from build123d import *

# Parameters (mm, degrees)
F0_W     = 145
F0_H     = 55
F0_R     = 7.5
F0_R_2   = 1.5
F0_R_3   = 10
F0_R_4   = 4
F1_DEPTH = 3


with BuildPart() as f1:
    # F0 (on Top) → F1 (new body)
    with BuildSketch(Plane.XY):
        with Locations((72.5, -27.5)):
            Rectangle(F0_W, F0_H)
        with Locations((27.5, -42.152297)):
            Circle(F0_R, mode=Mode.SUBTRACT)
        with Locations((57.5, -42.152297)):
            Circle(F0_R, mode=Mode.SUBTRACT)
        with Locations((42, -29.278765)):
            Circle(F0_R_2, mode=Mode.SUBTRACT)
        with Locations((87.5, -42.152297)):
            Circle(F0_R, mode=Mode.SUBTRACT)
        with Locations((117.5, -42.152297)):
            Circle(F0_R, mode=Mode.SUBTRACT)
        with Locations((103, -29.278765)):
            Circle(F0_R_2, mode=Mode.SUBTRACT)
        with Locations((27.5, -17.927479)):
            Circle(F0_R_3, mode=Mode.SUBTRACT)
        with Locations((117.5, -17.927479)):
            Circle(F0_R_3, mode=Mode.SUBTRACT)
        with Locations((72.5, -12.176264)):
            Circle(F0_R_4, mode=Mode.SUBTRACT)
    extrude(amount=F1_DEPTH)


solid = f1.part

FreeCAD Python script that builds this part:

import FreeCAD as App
import Part
import Sketcher
Q = App.Units.Quantity


def add_polygon(sketch, points):
    """Adds a closed chain of lines whose ends are joined by coincident constraints."""
    first, n = sketch.GeometryCount, len(points)
    for a, b in zip(points, points[1:] + points[:1]):
        sketch.addGeometry(Part.LineSegment(App.Vector(*a, 0), App.Vector(*b, 0)), False)
    for i in range(n):
        sketch.addConstraint(Sketcher.Constraint("Coincident", first + i, 2, first + (i + 1) % n, 1))

doc = App.newDocument("Part")
params = doc.addObject("Spreadsheet::Sheet", "Params")
for row, (alias, value) in enumerate([
    ("sketch1_diameter", "15 mm"),
    ("sketch1_diameter2", "3 mm"),
    ("sketch1_diameter3", "20 mm"),
    ("sketch1_diameter4", "8 mm"),
    ("sketch1_width", "145 mm"),
    ("pad1_length", "3 mm"),
], start=1):
    params.set(f"A{row}", alias)
    params.set(f"B{row}", "=" + value)
    params.setAlias(f"B{row}", alias)

body = doc.addObject("PartDesign::Body", "Body")

# Sketch on XY plane
sketch1 = body.newObject("Sketcher::SketchObject", "Sketch")
sketch1.AttachmentSupport = (doc.getObject("XY_Plane"), [""])
sketch1.MapMode = "FlatFace"
add_polygon(sketch1, [(0, 0), (0, -55), (145, -55), (145, 0)])  # lines 0-3
sketch1.addGeometry(Part.Circle(App.Vector(27.5, -42.2, 0), App.Vector(0, 0, 1), 7.5), False)  # 4
sketch1.addGeometry(Part.Circle(App.Vector(57.5, -42.2, 0), App.Vector(0, 0, 1), 7.5), False)  # 5
sketch1.addGeometry(Part.Circle(App.Vector(42, -29.3, 0), App.Vector(0, 0, 1), 1.5), False)  # 6
sketch1.addGeometry(Part.Circle(App.Vector(87.5, -42.2, 0), App.Vector(0, 0, 1), 7.5), False)  # 7
sketch1.addGeometry(Part.Circle(App.Vector(117.5, -42.2, 0), App.Vector(0, 0, 1), 7.5), False)  # 8
sketch1.addGeometry(Part.Circle(App.Vector(103, -29.3, 0), App.Vector(0, 0, 1), 1.5), False)  # 9
sketch1.addGeometry(Part.Circle(App.Vector(27.5, -17.9, 0), App.Vector(0, 0, 1), 10), False)  # 10
sketch1.addGeometry(Part.Circle(App.Vector(72.5, -12.2, 0), App.Vector(0, 0, 1), 4), False)  # 11
sketch1.addGeometry(Part.Circle(App.Vector(117.5, -17.9, 0), App.Vector(0, 0, 1), 10), False)  # 12
sketch1.addConstraint([
    Sketcher.Constraint("Vertical", 0),
    Sketcher.Constraint("Horizontal", 1),
    Sketcher.Constraint("Vertical", 2),
    Sketcher.Constraint("Horizontal", 3),
    Sketcher.Constraint("Coincident", 3, 2, -1, 1),
    Sketcher.Constraint("Equal", 4, 5),
    Sketcher.Constraint("Equal", 5, 7),
    Sketcher.Constraint("Equal", 7, 8),
    Sketcher.Constraint("Equal", 6, 9),
    Sketcher.Constraint("Equal", 10, 12),
    Sketcher.Constraint("Horizontal", 4, 3, 5, 3),
    Sketcher.Constraint("Horizontal", 5, 3, 7, 3),
    Sketcher.Constraint("Horizontal", 7, 3, 8, 3),
    Sketcher.Constraint("Horizontal", 6, 3, 9, 3),
    Sketcher.Constraint("Horizontal", 10, 3, 12, 3),
    Sketcher.Constraint("Vertical", 4, 3, 10, 3),
    Sketcher.Constraint("Vertical", 8, 3, 12, 3),
    Sketcher.Constraint("Diameter", 4, Q("15 mm")),
    Sketcher.Constraint("Diameter", 6, Q("3 mm")),
    Sketcher.Constraint("Diameter", 10, Q("20 mm")),
    Sketcher.Constraint("Diameter", 11, Q("8 mm")),
    Sketcher.Constraint("DistanceX", 1, 1, 1, 2, Q("145 mm")),
    Sketcher.Constraint("DistanceY", 0, 2, 0, 1, Q("55 mm")),
    Sketcher.Constraint("DistanceX", -1, 1, 6, 3, Q("42 mm")),
    Sketcher.Constraint("DistanceX", -1, 1, 9, 3, Q("103 mm")),
    Sketcher.Constraint("DistanceX", 4, 3, 5, 3, Q("30 mm")),
    Sketcher.Constraint("DistanceX", 5, 3, 7, 3, Q("30 mm")),
    Sketcher.Constraint("DistanceX", 7, 3, 8, 3, Q("30 mm")),
    Sketcher.Constraint("DistanceX", 5, 3, 11, 3, Q("15 mm")),
    Sketcher.Constraint("DistanceX", -1, 1, 4, 3, Q("27.5 mm")),
    Sketcher.Constraint("DistanceY", 6, 3, 11, 3, Q("17.102501 mm")),
    Sketcher.Constraint("DistanceY", 10, 3, -1, 1, Q("17.927479 mm")),
    Sketcher.Constraint("DistanceY", 4, 3, 6, 3, Q("12.873532 mm")),
    Sketcher.Constraint("DistanceY", 4, 3, -1, 1, Q("42.152297 mm")),
])
sketch1.setExpression("Constraints[21]", "Params.sketch1_diameter")
sketch1.setExpression("Constraints[22]", "Params.sketch1_diameter2")
sketch1.setExpression("Constraints[23]", "Params.sketch1_diameter3")
sketch1.setExpression("Constraints[24]", "Params.sketch1_diameter4")
sketch1.setExpression("Constraints[25]", "Params.sketch1_width")
pad1 = body.newObject("PartDesign::Pad", "Pad")
pad1.Profile = sketch1
pad1.setExpression("Length", "Params.pad1_length")

doc.recompute()
